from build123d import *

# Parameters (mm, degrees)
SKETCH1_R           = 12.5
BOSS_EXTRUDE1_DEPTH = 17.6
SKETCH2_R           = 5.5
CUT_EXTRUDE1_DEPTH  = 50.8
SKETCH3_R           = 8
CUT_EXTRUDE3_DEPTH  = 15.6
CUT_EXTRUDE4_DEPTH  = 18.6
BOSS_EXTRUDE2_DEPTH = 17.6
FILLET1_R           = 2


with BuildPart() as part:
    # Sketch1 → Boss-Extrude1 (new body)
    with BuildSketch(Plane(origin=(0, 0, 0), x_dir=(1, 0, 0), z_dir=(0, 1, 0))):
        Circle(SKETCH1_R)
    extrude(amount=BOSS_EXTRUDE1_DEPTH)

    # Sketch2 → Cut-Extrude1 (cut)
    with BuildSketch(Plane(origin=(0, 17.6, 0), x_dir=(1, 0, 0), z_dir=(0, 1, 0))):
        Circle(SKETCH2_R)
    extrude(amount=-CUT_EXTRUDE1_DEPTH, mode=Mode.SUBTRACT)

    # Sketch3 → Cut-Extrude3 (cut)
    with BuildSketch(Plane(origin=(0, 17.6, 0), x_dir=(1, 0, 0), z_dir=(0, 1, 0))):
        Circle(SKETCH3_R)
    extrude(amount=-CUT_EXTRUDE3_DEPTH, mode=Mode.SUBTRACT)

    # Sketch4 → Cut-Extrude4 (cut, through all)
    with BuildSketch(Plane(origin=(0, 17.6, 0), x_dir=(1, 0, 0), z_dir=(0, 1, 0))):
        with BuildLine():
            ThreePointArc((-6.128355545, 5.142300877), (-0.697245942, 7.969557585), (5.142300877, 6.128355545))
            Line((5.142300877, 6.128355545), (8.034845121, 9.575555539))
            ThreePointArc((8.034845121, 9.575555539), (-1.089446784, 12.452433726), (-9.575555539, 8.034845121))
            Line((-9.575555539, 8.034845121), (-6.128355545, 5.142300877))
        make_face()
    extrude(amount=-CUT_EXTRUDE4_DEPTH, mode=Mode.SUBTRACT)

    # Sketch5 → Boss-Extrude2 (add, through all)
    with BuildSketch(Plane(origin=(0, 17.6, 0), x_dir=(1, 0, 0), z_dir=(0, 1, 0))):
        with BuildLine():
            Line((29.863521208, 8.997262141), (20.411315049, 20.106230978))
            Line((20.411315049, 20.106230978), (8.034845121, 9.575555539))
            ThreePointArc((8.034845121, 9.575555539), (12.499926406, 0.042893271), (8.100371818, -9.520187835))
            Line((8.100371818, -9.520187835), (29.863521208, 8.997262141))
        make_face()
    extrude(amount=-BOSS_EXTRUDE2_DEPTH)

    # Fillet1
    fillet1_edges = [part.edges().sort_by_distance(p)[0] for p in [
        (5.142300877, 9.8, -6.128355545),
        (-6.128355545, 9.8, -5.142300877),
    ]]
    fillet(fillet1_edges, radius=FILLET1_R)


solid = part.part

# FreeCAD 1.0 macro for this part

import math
import FreeCAD as App
import Part
import Sketcher
Q = App.Units.Quantity


def edges_at(feature, points):
    """Names of the edges that pass closest to the given points."""
    edges = feature.Shape.Edges
    near = lambda p: min(range(len(edges)), key=lambda i: edges[i].distToShape(Part.Vertex(*p))[0])
    return sorted({f"Edge{near(p) + 1}" for p in points})

doc = App.newDocument("Part")
params = doc.addObject("Spreadsheet::Sheet", "Params")
for row, (alias, value) in enumerate([
    ("sketch1_diameter", "25 mm"),
    ("pad1_length", "17.6 mm"),
    ("sketch2_diameter", "11 mm"),
    ("pocket1_length", "50.8 mm"),
    ("sketch3_diameter", "16 mm"),
    ("pocket2_length", "15.6 mm"),
    ("sketch4_radius", "8 mm"),
    ("sketch4_radius2", "12.5 mm"),
    ("sketch5_radius", "12.5 mm"),
    ("pad2_length", "17.6 mm"),
    ("fillet_radius", "2 mm"),
], start=1):
    params.set(f"A{row}", alias)
    params.set(f"B{row}", "=" + value)
    params.setAlias(f"B{row}", alias)

body = doc.addObject("PartDesign::Body", "Body")

# Sketch on XZ plane
sketch1 = doc.addObject("Sketcher::SketchObject", "Sketch")
body.addObject(sketch1)
sketch1.AttachmentSupport = (doc.XZ_Plane, [""])
sketch1.MapMode = "FlatFace"
sketch1.addGeometry(Part.Circle(App.Vector(0, 0, 0), App.Vector(0, 0, 1), 12.5), False)
sketch1.addConstraint(Sketcher.Constraint("Coincident", 0, 3, -1, 1))
sketch1.addConstraint(Sketcher.Constraint("Diameter", 0, Q("25 mm")))
sketch1.setExpression("Constraints[1]", "Params.sketch1_diameter")
pad1 = doc.addObject("PartDesign::Pad", "Pad")
body.addObject(pad1)
pad1.Profile = sketch1
pad1.setExpression("Length", "Params.pad1_length")
pad1.Reversed = True

# Sketch on XZ plane
sketch2 = doc.addObject("Sketcher::SketchObject", "Sketch001")
body.addObject(sketch2)
sketch2.AttachmentSupport = (doc.XZ_Plane, [""])
sketch2.MapMode = "FlatFace"
sketch2.AttachmentOffset = App.Placement(App.Vector(0, 0, -17.6), App.Rotation())
sketch2.addGeometry(Part.Circle(App.Vector(0, 0, 0), App.Vector(0, 0, 1), 5.5), False)
sketch2.addConstraint(Sketcher.Constraint("Coincident", 0, 3, -1, 1))
sketch2.addConstraint(Sketcher.Constraint("Diameter", 0, Q("11 mm")))
sketch2.setExpression("Constraints[1]", "Params.sketch2_diameter")
pocket1 = doc.addObject("PartDesign::Pocket", "Pocket")
body.addObject(pocket1)
pocket1.Profile = sketch2
pocket1.setExpression("Length", "Params.pocket1_length")
pocket1.Reversed = True

# Sketch on XZ plane
sketch3 = doc.addObject("Sketcher::SketchObject", "Sketch002")
body.addObject(sketch3)
sketch3.AttachmentSupport = (doc.XZ_Plane, [""])
sketch3.MapMode = "FlatFace"
sketch3.AttachmentOffset = App.Placement(App.Vector(0, 0, -17.6), App.Rotation())
sketch3.addGeometry(Part.Circle(App.Vector(0, 0, 0), App.Vector(0, 0, 1), 8), False)
sketch3.addConstraint(Sketcher.Constraint("Coincident", 0, 3, -1, 1))
sketch3.addConstraint(Sketcher.Constraint("Diameter", 0, Q("16 mm")))
sketch3.setExpression("Constraints[1]", "Params.sketch3_diameter")
pocket2 = doc.addObject("PartDesign::Pocket", "Pocket001")
body.addObject(pocket2)
pocket2.Profile = sketch3
pocket2.setExpression("Length", "Params.pocket2_length")
pocket2.Reversed = True

# Sketch on XZ plane
sketch4 = doc.addObject("Sketcher::SketchObject", "Sketch003")
body.addObject(sketch4)
sketch4.AttachmentSupport = (doc.XZ_Plane, [""])
sketch4.MapMode = "FlatFace"
sketch4.AttachmentOffset = App.Placement(App.Vector(0, 0, -17.6), App.Rotation())
sketch4.addGeometry(Part.ArcOfCircle(Part.Circle(App.Vector(0, 0, 0), App.Vector(0, 0, 1), 8), math.radians(-140), math.radians(-50)), False)
sketch4.addGeometry(Part.LineSegment(App.Vector(5.142301, -6.128356, 0), App.Vector(8.034845, -9.575556, 0)), False)
sketch4.addGeometry(Part.ArcOfCircle(Part.Circle(App.Vector(0, 0, 0), App.Vector(0, 0, 1), 12.5), math.radians(-140), math.radians(-50)), False)
sketch4.addGeometry(Part.LineSegment(App.Vector(-9.575556, -8.034845, 0), App.Vector(-6.128356, -5.142301, 0)), False)
sketch4.addConstraint(Sketcher.Constraint("Coincident", 0, 2, 1, 1))
sketch4.addConstraint(Sketcher.Constraint("Coincident", 1, 2, 2, 2))
sketch4.addConstraint(Sketcher.Constraint("Coincident", 2, 1, 3, 1))
sketch4.addConstraint(Sketcher.Constraint("Coincident", 3, 2, 0, 1))
sketch4.addConstraint(Sketcher.Constraint("Coincident", 0, 3, -1, 1))
sketch4.addConstraint(Sketcher.Constraint("Coincident", 2, 3, -1, 1))
sketch4.addConstraint(Sketcher.Constraint("Perpendicular", 1, 3))
sketch4.addConstraint(Sketcher.Constraint("Radius", 0, Q("8 mm")))
sketch4.addConstraint(Sketcher.Constraint("Radius", 2, Q("12.5 mm")))
sketch4.addConstraint(Sketcher.Constraint("Angle", 1, Q("-50 deg")))
sketch4.addConstraint(Sketcher.Constraint("DistanceX", -1, 1, 0, 2, Q("5.142301 mm")))
sketch4.addConstraint(Sketcher.Constraint("DistanceY", 3, 2, -1, 1, Q("5.142301 mm")))
sketch4.setExpression("Constraints[7]", "Params.sketch4_radius")
sketch4.setExpression("Constraints[8]", "Params.sketch4_radius2")
pocket3 = doc.addObject("PartDesign::Pocket", "Pocket002")
body.addObject(pocket3)
pocket3.Profile = sketch4
pocket3.Type = "ThroughAll"
pocket3.Reversed = True

# Sketch on XZ plane
sketch5 = doc.addObject("Sketcher::SketchObject", "Sketch004")
body.addObject(sketch5)
sketch5.AttachmentSupport = (doc.XZ_Plane, [""])
sketch5.MapMode = "FlatFace"
sketch5.AttachmentOffset = App.Placement(App.Vector(0, 0, -17.6), App.Rotation())
sketch5.addGeometry(Part.LineSegment(App.Vector(29.863521, -8.997262, 0), App.Vector(20.411315, -20.106231, 0)), False)
sketch5.addGeometry(Part.LineSegment(App.Vector(20.411315, -20.106231, 0), App.Vector(8.034845, -9.575556, 0)), False)
sketch5.addGeometry(Part.ArcOfCircle(Part.Circle(App.Vector(0, 0, 0), App.Vector(0, 0, 1), 12.5), math.radians(-50), math.radians(49.606783)), False)
sketch5.addGeometry(Part.LineSegment(App.Vector(8.100372, 9.520188, 0), App.Vector(29.863521, -8.997262, 0)), False)
sketch5.addConstraint(Sketcher.Constraint("Coincident", 0, 2, 1, 1))
sketch5.addConstraint(Sketcher.Constraint("Coincident", 1, 2, 2, 1))
sketch5.addConstraint(Sketcher.Constraint("Tangent", 2, 2, 3, 1))
sketch5.addConstraint(Sketcher.Constraint("Coincident", 3, 2, 0, 1))
sketch5.addConstraint(Sketcher.Constraint("Coincident", 2, 3, -1, 1))
sketch5.addConstraint(Sketcher.Constraint("Perpendicular", 0, 1))
sketch5.addConstraint(Sketcher.Constraint("Parallel", 1, 3))
sketch5.addConstraint(Sketcher.Constraint("Radius", 2, Q("12.5 mm")))
sketch5.addConstraint(Sketcher.Constraint("Distance", 3, Q("28.575 mm")))
sketch5.addConstraint(Sketcher.Constraint("Distance", 0, Q("14.586068 mm")))
sketch5.addConstraint(Sketcher.Constraint("DistanceY", 0, 2, -1, 1, Q("20.106231 mm")))
sketch5.setExpression("Constraints[7]", "Params.sketch5_radius")
pad2 = doc.addObject("PartDesign::Pad", "Pad001")
body.addObject(pad2)
pad2.Profile = sketch5
pad2.setExpression("Length", "Params.pad2_length")
doc.recompute()

fillet = doc.addObject("PartDesign::Fillet", "Fillet")
body.addObject(fillet)
fillet.Base = (pad2, edges_at(pad2, [(5.142, 9.8, -6.128), (-6.128, 9.8, -5.142)]))
fillet.setExpression("Radius", "Params.fillet_radius")

doc.recompute()
